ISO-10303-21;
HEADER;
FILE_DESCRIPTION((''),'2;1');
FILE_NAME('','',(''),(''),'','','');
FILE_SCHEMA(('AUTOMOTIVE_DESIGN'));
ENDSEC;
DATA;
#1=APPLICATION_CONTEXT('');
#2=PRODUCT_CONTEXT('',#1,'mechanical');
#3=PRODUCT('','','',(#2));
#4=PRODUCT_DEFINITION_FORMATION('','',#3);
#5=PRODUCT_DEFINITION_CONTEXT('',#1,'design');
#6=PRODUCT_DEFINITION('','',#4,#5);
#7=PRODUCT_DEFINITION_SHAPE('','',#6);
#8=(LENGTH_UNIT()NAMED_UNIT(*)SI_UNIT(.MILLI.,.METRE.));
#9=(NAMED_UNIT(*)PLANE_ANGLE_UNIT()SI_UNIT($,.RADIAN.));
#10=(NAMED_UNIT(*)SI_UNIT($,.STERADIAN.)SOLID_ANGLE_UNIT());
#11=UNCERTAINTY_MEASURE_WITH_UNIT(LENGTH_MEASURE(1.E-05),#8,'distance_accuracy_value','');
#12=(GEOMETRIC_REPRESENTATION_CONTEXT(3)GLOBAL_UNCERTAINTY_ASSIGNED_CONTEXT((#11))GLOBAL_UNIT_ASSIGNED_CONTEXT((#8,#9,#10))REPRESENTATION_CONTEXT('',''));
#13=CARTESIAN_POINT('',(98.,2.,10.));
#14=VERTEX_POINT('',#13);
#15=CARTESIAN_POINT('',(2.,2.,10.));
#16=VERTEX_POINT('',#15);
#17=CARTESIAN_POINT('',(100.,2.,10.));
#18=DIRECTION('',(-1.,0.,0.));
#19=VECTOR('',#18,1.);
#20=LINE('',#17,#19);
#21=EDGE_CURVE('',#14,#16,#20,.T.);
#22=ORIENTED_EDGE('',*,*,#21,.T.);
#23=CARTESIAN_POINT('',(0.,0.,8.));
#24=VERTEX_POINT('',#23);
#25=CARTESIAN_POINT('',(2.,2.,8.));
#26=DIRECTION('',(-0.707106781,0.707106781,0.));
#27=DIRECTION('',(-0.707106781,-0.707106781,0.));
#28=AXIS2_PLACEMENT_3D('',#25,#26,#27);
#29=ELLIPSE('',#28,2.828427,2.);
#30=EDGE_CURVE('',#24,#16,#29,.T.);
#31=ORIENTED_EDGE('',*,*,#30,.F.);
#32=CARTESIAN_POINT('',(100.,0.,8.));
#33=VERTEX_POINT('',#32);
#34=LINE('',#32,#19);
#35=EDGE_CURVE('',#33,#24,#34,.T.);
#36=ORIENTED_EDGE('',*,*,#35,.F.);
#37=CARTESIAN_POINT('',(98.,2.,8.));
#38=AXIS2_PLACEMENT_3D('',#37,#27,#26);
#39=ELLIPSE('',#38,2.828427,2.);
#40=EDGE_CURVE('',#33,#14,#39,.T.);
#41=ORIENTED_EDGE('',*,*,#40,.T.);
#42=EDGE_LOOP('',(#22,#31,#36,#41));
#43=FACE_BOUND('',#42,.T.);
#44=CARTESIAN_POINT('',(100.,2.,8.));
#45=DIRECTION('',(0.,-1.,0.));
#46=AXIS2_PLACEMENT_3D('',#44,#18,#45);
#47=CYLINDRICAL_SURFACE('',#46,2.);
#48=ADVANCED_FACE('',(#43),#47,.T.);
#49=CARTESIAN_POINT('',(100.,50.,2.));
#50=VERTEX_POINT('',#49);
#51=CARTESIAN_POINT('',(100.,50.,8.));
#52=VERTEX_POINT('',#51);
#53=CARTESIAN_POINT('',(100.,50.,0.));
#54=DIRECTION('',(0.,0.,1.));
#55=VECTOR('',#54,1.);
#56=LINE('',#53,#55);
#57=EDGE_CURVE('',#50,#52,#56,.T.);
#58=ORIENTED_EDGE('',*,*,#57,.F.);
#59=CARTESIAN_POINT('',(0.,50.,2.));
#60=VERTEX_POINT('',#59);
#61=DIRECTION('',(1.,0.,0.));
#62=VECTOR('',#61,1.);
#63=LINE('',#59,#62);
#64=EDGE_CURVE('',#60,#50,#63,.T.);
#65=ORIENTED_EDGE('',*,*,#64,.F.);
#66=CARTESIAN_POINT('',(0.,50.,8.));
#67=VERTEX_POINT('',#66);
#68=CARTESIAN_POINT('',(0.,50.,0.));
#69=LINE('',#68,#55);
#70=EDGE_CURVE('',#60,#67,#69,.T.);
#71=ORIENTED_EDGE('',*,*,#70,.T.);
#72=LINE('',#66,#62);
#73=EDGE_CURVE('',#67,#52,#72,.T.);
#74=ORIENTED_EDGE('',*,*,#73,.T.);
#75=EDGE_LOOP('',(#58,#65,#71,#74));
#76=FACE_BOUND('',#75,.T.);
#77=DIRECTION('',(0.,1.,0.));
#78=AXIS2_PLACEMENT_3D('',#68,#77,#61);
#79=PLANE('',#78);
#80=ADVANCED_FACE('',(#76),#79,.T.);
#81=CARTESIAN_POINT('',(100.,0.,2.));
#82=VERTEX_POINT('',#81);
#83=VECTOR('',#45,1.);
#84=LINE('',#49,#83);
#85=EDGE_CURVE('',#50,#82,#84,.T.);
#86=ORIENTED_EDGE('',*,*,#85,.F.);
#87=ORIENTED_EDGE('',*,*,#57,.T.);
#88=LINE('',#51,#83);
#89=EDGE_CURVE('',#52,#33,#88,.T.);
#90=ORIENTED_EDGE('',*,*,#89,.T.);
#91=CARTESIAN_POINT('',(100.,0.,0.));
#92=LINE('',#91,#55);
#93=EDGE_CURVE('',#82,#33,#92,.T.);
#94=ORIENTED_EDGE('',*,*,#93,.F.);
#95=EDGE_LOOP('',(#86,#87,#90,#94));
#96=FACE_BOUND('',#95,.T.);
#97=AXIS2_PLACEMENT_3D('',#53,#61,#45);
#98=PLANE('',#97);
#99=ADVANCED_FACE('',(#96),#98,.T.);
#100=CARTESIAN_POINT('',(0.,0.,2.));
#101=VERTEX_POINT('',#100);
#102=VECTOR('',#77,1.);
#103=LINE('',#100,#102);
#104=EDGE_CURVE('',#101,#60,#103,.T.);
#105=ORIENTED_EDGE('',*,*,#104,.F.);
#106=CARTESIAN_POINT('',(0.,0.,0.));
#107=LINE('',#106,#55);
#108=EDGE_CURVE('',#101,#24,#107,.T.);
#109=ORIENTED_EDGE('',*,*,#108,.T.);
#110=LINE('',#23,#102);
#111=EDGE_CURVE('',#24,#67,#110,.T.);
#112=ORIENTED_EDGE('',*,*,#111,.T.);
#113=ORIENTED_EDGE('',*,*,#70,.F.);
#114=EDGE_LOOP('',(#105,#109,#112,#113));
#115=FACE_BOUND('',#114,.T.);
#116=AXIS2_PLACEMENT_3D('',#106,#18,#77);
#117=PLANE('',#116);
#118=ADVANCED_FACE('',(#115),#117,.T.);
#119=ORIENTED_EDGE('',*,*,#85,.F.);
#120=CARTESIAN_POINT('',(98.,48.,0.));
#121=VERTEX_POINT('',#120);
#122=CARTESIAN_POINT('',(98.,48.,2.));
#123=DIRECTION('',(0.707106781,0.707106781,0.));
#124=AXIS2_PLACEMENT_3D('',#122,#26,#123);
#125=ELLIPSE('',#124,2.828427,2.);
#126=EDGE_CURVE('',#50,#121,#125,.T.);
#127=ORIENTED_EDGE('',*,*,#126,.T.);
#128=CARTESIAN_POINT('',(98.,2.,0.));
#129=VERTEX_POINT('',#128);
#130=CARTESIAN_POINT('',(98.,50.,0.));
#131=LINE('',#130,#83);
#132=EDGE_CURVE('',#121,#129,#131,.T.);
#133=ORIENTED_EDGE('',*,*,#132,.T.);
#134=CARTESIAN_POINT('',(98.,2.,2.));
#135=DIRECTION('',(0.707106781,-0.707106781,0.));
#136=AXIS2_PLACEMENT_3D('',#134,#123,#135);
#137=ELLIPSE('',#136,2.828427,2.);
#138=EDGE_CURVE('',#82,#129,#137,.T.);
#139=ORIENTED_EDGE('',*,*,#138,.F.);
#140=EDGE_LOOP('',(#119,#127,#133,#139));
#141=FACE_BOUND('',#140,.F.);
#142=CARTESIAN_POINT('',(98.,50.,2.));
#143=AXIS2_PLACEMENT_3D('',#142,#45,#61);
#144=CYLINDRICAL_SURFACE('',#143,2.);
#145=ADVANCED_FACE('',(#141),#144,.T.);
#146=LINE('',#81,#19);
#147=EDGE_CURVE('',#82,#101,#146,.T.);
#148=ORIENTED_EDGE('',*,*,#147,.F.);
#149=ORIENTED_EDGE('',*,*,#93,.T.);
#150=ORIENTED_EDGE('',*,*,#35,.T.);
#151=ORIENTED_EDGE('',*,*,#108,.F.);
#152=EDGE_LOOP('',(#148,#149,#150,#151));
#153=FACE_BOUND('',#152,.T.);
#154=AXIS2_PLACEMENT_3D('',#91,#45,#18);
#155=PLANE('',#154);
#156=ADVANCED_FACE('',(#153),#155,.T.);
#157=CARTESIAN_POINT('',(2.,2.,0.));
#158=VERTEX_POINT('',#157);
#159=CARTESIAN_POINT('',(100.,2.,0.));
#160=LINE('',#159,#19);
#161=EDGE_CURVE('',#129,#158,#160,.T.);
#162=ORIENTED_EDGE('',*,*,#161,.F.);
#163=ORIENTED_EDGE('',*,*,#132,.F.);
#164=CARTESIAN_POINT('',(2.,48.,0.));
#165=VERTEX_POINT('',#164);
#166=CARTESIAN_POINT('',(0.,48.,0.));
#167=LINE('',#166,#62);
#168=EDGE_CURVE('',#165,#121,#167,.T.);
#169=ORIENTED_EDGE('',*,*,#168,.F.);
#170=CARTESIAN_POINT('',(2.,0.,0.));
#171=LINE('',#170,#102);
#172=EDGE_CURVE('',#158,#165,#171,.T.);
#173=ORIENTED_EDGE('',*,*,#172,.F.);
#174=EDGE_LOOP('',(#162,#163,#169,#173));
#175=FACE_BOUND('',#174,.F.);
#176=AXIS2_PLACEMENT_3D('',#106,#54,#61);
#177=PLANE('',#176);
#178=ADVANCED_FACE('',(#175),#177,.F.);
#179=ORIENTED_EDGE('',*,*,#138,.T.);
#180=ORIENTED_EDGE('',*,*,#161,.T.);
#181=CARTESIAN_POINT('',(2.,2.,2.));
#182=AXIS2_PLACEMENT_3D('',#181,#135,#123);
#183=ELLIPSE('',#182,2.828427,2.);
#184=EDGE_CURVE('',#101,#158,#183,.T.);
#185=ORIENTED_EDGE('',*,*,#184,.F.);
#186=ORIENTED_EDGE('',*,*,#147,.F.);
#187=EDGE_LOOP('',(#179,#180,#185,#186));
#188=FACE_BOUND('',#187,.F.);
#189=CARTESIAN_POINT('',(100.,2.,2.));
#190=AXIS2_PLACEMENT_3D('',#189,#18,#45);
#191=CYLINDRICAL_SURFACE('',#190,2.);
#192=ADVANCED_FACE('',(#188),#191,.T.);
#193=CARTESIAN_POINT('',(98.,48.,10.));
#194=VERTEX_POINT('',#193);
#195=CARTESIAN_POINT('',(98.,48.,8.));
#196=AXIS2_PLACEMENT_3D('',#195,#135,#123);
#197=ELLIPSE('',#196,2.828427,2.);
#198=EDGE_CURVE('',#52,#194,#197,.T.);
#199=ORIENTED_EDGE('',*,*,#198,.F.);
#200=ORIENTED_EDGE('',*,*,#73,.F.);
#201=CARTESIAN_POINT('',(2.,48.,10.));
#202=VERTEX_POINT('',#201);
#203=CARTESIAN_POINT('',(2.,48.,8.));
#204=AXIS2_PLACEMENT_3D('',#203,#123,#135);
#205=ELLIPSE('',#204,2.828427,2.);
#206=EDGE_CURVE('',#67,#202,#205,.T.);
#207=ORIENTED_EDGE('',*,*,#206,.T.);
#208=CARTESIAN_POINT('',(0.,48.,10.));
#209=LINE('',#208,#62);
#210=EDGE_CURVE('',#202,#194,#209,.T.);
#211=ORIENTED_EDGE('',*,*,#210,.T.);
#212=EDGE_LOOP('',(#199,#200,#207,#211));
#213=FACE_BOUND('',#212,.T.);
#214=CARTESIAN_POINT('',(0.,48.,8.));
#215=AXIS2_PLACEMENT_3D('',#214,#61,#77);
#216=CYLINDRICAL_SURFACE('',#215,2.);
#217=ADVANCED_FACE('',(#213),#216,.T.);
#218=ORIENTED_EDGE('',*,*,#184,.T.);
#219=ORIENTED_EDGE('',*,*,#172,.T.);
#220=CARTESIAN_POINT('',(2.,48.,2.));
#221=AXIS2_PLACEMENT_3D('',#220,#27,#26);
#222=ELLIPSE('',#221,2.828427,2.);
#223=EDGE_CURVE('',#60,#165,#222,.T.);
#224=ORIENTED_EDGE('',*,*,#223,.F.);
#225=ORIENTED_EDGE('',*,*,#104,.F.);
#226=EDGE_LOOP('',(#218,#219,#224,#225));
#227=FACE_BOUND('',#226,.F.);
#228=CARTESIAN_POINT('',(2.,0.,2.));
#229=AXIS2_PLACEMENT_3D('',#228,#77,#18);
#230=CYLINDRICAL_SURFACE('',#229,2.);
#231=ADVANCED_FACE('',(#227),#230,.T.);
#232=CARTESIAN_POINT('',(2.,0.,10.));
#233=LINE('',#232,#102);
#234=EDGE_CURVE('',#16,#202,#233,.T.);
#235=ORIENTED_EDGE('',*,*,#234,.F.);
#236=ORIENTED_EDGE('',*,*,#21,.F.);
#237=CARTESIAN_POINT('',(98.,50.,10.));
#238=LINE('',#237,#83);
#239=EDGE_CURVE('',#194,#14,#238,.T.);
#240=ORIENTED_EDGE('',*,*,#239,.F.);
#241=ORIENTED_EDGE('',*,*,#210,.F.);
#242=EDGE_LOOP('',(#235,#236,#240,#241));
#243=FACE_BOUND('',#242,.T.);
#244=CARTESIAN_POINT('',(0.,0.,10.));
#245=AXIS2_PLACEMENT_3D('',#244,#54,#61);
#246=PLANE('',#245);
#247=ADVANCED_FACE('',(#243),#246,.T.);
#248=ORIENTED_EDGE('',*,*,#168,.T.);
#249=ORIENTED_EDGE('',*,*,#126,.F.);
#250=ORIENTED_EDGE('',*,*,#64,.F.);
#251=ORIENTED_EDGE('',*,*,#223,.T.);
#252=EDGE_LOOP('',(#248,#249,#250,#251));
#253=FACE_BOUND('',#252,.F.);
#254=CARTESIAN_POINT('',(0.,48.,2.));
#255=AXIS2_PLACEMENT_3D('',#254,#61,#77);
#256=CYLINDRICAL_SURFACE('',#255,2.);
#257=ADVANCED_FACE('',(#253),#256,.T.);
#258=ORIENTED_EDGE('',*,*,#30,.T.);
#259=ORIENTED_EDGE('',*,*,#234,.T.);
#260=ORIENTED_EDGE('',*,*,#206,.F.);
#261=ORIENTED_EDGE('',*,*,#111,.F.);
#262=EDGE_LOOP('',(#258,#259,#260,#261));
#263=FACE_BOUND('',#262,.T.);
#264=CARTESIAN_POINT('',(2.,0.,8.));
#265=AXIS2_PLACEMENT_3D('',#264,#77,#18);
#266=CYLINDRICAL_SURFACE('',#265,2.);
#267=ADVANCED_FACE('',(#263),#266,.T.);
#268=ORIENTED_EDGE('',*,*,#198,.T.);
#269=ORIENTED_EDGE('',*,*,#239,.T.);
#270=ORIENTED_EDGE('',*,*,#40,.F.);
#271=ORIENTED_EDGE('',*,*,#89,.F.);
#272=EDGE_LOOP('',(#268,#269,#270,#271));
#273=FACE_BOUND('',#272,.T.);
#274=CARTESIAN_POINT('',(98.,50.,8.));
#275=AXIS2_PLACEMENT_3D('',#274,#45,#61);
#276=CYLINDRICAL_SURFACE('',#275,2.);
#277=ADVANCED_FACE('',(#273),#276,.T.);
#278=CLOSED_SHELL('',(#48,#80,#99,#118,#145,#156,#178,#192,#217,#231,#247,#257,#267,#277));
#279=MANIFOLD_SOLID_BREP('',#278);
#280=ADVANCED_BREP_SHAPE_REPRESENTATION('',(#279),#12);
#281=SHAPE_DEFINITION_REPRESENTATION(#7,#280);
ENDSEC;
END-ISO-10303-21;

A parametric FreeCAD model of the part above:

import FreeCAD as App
import Part
import Sketcher


def edges_at(feature, points):
    """Names of the edges that pass closest to the given points."""
    edges = feature.Shape.Edges
    near = lambda p: min(range(len(edges)), key=lambda i: edges[i].distToShape(Part.Vertex(*p))[0])
    return sorted({f"Edge{near(p) + 1}" for p in points})

doc = App.newDocument("Part")
body = doc.addObject("PartDesign::Body", "Body")

sketch1 = doc.addObject("Sketcher::SketchObject", "Sketch")
body.addObject(sketch1)
sketch1.AttachmentSupport = (doc.XY_Plane, [""])
sketch1.MapMode = "FlatFace"
sketch1.addGeometry([
    Part.LineSegment(App.Vector(0, 50, 0), App.Vector(0, 0, 0)),
    Part.LineSegment(App.Vector(0, 0, 0), App.Vector(100, 0, 0)),
    Part.LineSegment(App.Vector(100, 0, 0), App.Vector(100, 50, 0)),
    Part.LineSegment(App.Vector(100, 50, 0), App.Vector(0, 50, 0)),
], False)
sketch1.addConstraint([
    Sketcher.Constraint("Coincident", 0, 2, 1, 1),
    Sketcher.Constraint("Coincident", 1, 2, 2, 1),
    Sketcher.Constraint("Coincident", 2, 2, 3, 1),
    Sketcher.Constraint("Coincident", 3, 2, 0, 1),
    Sketcher.Constraint("Vertical", 0),
    Sketcher.Constraint("Horizontal", 1),
    Sketcher.Constraint("Vertical", 2),
    Sketcher.Constraint("Horizontal", 3),
    Sketcher.Constraint("Coincident", 0, 2, -1, 1),
    Sketcher.Constraint("DistanceX", 1, 1, 1, 2, 100.0),
    Sketcher.Constraint("DistanceY", 0, 2, 0, 1, 50.0),
])
pad1 = doc.addObject("PartDesign::Pad", "Pad")
body.addObject(pad1)
pad1.Profile = sketch1
pad1.Length = 10
doc.recompute()

fillet = doc.addObject("PartDesign::Fillet", "Fillet")
body.addObject(fillet)
fillet.Base = (pad1, edges_at(pad1, [
    (50, 0, 10),
    (50, 50, 10),
    (0, 25, 10),
    (0, 25, 0),
    (50, 50, 0),
    (100, 25, 0),
    (100, 25, 10),
    (50, 0, 0),
]))
fillet.Radius = 2

doc.recompute()
